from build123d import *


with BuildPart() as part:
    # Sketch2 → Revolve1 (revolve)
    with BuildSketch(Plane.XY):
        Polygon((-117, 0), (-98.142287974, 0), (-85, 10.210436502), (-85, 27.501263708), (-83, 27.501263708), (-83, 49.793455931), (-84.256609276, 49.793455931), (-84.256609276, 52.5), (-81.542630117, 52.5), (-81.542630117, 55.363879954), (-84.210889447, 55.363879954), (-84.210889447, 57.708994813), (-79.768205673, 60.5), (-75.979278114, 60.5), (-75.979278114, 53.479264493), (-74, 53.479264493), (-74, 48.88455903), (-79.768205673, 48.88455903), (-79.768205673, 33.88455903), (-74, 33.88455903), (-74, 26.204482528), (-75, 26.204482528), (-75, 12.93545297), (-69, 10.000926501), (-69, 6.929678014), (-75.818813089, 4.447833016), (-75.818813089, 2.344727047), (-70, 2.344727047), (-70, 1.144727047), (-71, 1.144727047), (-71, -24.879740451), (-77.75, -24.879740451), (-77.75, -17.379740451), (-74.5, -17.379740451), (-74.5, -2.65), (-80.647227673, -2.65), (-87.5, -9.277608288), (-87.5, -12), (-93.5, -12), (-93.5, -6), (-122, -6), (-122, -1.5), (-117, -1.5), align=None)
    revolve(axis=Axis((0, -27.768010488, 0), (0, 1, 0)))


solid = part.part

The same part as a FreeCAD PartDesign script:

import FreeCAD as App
import Part
import Sketcher

V = App.Vector
Q = App.Units.Quantity


def add_polygon(sketch, points):
    """Adds a closed chain of lines whose ends are joined by coincident constraints."""
    first, n = sketch.GeometryCount, len(points)
    for a, b in zip(points, points[1:] + points[:1]):
        sketch.addGeometry(Part.LineSegment(App.Vector(*a, 0), App.Vector(*b, 0)), False)
    for i in range(n):
        sketch.addConstraint(Sketcher.Constraint("Coincident", first + i, 2, first + (i + 1) % n, 1))

doc = App.newDocument("Part")
body = doc.addObject("PartDesign::Body", "Body")

# Sketch on XY plane
sketch1 = doc.addObject("Sketcher::SketchObject", "Sketch")
body.addObject(sketch1)
sketch1.AttachmentSupport = (doc.XY_Plane, [""])
sketch1.MapMode = "FlatFace"
add_polygon(sketch1, [(-98.142288, 0), (-117, 0), (-117, -1.5), (-122, -1.5), (-122, -6), (-93.5, -6), (-93.5, -12), (-87.5, -12), (-87.5, -9.277608), (-80.647228, -2.65), (-74.5, -2.65), (-74.5, -17.37974), (-77.75, -17.37974), (-77.75, -24.87974), (-71, -24.87974), (-71, 1.144727), (-70, 1.144727), (-70, 2.344727), (-75.818813, 2.344727), (-75.818813, 4.447833), (-69, 6.929678), (-69, 10.000927), (-75, 12.935453), (-75, 26.204483), (-74, 26.204483), (-74, 33.884559), (-79.768206, 33.884559), (-79.768206, 48.884559), (-74, 48.884559), (-74, 53.479264), (-75.979278, 53.479264), (-75.979278, 60.5), (-79.768206, 60.5), (-84.210889, 57.708995), (-84.210889, 55.36388), (-81.54263, 55.36388), (-81.54263, 52.5), (-84.256609, 52.5), (-84.256609, 49.793456), (-83, 49.793456), (-83, 27.501264), (-85, 27.501264), (-85, 10.210437)])  # lines 0-42
sketch1.addConstraint([
    Sketcher.Constraint("Horizontal", 0),
    Sketcher.Constraint("Vertical", 1),
    Sketcher.Constraint("Horizontal", 2),
    Sketcher.Constraint("Vertical", 3),
    Sketcher.Constraint("Horizontal", 4),
    Sketcher.Constraint("Vertical", 5),
    Sketcher.Constraint("Horizontal", 6),
    Sketcher.Constraint("Vertical", 7),
    Sketcher.Constraint("Horizontal", 9),
    Sketcher.Constraint("Vertical", 10),
    Sketcher.Constraint("Horizontal", 11),
    Sketcher.Constraint("Vertical", 12),
    Sketcher.Constraint("Horizontal", 13),
    Sketcher.Constraint("Vertical", 14),
    Sketcher.Constraint("Horizontal", 15),
    Sketcher.Constraint("Vertical", 16),
    Sketcher.Constraint("Horizontal", 17),
    Sketcher.Constraint("Vertical", 18),
    Sketcher.Constraint("Vertical", 20),
    Sketcher.Constraint("Vertical", 22),
    Sketcher.Constraint("Horizontal", 23),
    Sketcher.Constraint("Vertical", 24),
    Sketcher.Constraint("Horizontal", 25),
    Sketcher.Constraint("Vertical", 26),
    Sketcher.Constraint("Horizontal", 27),
    Sketcher.Constraint("Vertical", 28),
    Sketcher.Constraint("Horizontal", 29),
    Sketcher.Constraint("Vertical", 30),
    Sketcher.Constraint("Horizontal", 31),
    Sketcher.Constraint("Vertical", 33),
    Sketcher.Constraint("Horizontal", 34),
    Sketcher.Constraint("Vertical", 35),
    Sketcher.Constraint("Horizontal", 36),
    Sketcher.Constraint("Vertical", 37),
    Sketcher.Constraint("Horizontal", 38),
    Sketcher.Constraint("Vertical", 39),
    Sketcher.Constraint("Horizontal", 40),
    Sketcher.Constraint("Vertical", 41),
    Sketcher.Constraint("PointOnObject", 0, 2, -1),
    Sketcher.Constraint("Vertical", 24, 2, 27, 2),
    Sketcher.Constraint("Vertical", 26, 2, 31, 2),
    Sketcher.Constraint("Equal", 15, 23),
    Sketcher.Constraint("Equal", 6, 5),
    Sketcher.Constraint("DistanceX", 2, 2, 2, 1, 5.0),
    Sketcher.Constraint("DistanceX", 6, 1, 6, 2, 6.0),
    Sketcher.Constraint("DistanceX", 15, 1, 15, 2, 1.0),
    Sketcher.Constraint("DistanceX", 40, 2, 40, 1, 2.0),
    Sketcher.Constraint("DistanceY", 26, 1, 26, 2, 15.0),
    Sketcher.Constraint("Angle", 19, Q("20 deg")),
    Sketcher.Constraint("DistanceX", 4, 1, 4, 2, 28.5),
    Sketcher.Constraint("DistanceY", 1, 2, 1, 1, 1.5),
    Sketcher.Constraint("DistanceY", 3, 2, 3, 1, 4.5),
    Sketcher.Constraint("DistanceY", 12, 2, 12, 1, 7.5),
    Sketcher.Constraint("DistanceY", 16, 1, 16, 2, 1.2),
    Sketcher.Constraint("DistanceX", 0, 2, -1, 1, 117.0),
    Sketcher.Constraint("DistanceX", 13, 2, -1, 1, 71.0),
    Sketcher.Constraint("DistanceX", 19, 2, -1, 1, 69.0),
    Sketcher.Constraint("DistanceX", 21, 2, -1, 1, 75.0),
    Sketcher.Constraint("DistanceX", 38, 2, -1, 1, 83.0),
    Sketcher.Constraint("DistanceX", 7, 2, 9, 2, 13.0),
    Sketcher.Constraint("DistanceX", 11, 2, 11, 1, 3.25),
    Sketcher.Constraint("DistanceY", -1, 1, 30, 2, 60.5),
    Sketcher.Constraint("DistanceY", -1, 1, 35, 2, 52.5),
    Sketcher.Constraint("DistanceY", 8, 2, -1, 1, 2.65),
    Sketcher.Constraint("Distance", 8, 9.533398),
    Sketcher.Constraint("Distance", 42, 16.642498),
    Sketcher.Constraint("DistanceX", 29, 2, 29, 1, 1.979278),
    Sketcher.Constraint("DistanceX", 34, 1, 34, 2, 2.668259),
    Sketcher.Constraint("DistanceX", 36, 2, 36, 1, 2.713979),
    Sketcher.Constraint("DistanceX", 38, 1, 38, 2, 1.256609),
    Sketcher.Constraint("DistanceY", 7, 1, 7, 2, 2.722392),
    Sketcher.Constraint("DistanceY", 10, 2, 10, 1, 14.72974),
    Sketcher.Constraint("DistanceY", 20, 1, 20, 2, 3.071248),
    Sketcher.Constraint("DistanceY", 22, 1, 22, 2, 13.26903),
    Sketcher.Constraint("DistanceY", 35, 2, 35, 1, 2.86388),
    Sketcher.Constraint("DistanceY", 16, 2, 20, 2, 7.656199),
    Sketcher.Constraint("Distance", 19, 7.256429),
    Sketcher.Constraint("Distance", 21, 6.67918),
    Sketcher.Constraint("DistanceX", 0, 2, 0, 1, 18.857712),
    Sketcher.Constraint("DistanceX", 25, 2, 25, 1, 5.768206),
    Sketcher.Constraint("DistanceY", 14, 1, 14, 2, 26.024467),
    Sketcher.Constraint("DistanceY", 24, 1, 24, 2, 7.680077),
    Sketcher.Constraint("DistanceY", 28, 1, 28, 2, 4.594705),
    Sketcher.Constraint("DistanceY", 33, 2, 33, 1, 2.345115),
    Sketcher.Constraint("DistanceY", 37, 2, 37, 1, 2.706544),
    Sketcher.Constraint("DistanceY", 39, 2, 39, 1, 22.292192),
])
revolution = doc.addObject("PartDesign::Revolution", "Revolution")
body.addObject(revolution)
revolution.Profile = sketch1
revolution.ReferenceAxis = (sketch1, ["V_Axis"])
revolution.Angle = 360

doc.recompute()
